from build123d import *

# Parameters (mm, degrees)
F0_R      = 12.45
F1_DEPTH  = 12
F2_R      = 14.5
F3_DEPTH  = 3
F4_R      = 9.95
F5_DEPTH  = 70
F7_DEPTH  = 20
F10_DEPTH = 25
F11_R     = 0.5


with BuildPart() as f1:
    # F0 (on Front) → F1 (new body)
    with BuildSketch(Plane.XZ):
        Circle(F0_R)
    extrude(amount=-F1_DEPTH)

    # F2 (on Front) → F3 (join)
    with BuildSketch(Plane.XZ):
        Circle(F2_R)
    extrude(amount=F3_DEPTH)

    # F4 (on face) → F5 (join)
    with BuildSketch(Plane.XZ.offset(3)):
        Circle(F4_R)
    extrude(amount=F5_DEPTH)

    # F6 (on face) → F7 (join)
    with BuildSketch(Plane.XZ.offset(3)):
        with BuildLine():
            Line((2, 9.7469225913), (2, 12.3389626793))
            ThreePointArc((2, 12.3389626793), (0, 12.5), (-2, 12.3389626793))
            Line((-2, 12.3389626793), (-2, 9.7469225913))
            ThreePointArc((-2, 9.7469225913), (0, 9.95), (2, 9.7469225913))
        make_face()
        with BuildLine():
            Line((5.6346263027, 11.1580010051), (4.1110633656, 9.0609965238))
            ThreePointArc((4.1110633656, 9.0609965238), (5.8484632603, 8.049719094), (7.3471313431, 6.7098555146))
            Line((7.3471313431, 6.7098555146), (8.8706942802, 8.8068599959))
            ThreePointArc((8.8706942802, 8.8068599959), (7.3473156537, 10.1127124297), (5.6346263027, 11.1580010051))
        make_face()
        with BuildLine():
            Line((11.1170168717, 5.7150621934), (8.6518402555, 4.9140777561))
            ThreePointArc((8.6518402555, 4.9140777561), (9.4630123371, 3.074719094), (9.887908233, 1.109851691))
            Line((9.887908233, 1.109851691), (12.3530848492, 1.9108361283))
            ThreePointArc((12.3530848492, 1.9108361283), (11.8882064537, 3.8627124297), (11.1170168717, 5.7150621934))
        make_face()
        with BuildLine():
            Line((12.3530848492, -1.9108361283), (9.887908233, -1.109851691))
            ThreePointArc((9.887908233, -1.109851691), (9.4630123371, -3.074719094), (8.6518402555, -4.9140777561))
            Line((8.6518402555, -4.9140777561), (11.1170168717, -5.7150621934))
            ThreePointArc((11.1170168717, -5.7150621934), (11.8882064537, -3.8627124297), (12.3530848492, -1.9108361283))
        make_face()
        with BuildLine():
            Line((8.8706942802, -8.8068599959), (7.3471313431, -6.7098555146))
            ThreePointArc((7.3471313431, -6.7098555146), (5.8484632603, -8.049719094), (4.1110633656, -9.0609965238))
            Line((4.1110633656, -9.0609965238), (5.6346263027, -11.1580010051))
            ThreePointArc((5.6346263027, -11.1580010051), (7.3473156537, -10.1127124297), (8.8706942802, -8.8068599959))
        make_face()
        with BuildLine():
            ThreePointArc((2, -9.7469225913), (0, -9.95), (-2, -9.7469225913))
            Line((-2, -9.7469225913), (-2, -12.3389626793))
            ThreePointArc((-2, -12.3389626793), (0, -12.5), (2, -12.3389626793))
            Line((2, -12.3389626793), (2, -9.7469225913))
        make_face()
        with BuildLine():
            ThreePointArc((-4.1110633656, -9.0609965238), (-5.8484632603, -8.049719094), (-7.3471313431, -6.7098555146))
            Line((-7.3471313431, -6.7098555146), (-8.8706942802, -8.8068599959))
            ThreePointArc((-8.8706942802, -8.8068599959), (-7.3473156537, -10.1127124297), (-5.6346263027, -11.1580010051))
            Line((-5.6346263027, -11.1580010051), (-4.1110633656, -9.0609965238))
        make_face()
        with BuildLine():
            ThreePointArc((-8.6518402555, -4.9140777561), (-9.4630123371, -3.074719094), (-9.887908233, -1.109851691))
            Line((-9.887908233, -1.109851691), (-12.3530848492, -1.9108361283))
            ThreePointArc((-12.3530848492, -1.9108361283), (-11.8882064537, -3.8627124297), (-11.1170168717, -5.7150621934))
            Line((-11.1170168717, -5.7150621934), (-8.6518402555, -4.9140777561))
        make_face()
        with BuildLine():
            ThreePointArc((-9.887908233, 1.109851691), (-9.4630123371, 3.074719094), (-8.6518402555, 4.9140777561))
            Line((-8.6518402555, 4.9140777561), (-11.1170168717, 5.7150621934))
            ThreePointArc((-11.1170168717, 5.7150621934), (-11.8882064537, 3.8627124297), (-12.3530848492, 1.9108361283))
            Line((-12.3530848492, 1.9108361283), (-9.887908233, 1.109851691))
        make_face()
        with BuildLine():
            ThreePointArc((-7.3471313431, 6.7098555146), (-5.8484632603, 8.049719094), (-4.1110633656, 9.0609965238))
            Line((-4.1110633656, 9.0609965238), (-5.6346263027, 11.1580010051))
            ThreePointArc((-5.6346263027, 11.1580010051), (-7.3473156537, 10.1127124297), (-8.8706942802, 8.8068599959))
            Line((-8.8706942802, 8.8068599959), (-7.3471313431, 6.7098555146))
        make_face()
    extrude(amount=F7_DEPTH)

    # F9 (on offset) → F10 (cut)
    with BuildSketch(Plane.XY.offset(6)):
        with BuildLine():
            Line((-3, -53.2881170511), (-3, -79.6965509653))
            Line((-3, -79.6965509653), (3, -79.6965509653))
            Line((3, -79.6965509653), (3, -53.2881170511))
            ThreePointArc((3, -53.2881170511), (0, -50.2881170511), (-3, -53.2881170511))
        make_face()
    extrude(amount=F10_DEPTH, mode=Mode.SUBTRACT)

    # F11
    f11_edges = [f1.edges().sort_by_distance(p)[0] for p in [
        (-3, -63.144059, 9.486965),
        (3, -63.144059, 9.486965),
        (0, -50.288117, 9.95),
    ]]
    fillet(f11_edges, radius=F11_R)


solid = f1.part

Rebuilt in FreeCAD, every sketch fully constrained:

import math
import FreeCAD as App
import Part
import Sketcher

V = App.Vector
Q = App.Units.Quantity


def edges_at(feature, points):
    """Names of the edges that pass closest to the given points."""
    edges = feature.Shape.Edges
    near = lambda p: min(range(len(edges)), key=lambda i: edges[i].distToShape(Part.Vertex(*p))[0])
    return sorted({f"Edge{near(p) + 1}" for p in points})

doc = App.newDocument("Part")
body = doc.addObject("PartDesign::Body", "Body")

# Sketch on XZ plane
sketch1 = body.newObject("Sketcher::SketchObject", "Sketch")
sketch1.AttachmentSupport = (doc.getObject("XZ_Plane"), [""])
sketch1.MapMode = "FlatFace"
sketch1.addGeometry(Part.Circle(V(0, 0, 0), V(0, 0, 1), 12), False)
sketch1.addConstraint([
    Sketcher.Constraint("Coincident", 0, 3, -1, 1),
    Sketcher.Constraint("Diameter", 0, 24.9),
])
pad1 = body.newObject("PartDesign::Pad", "Pad")
pad1.Profile = sketch1
pad1.Length = 12
pad1.Reversed = True

# Sketch on XZ plane
sketch2 = body.newObject("Sketcher::SketchObject", "Sketch001")
sketch2.AttachmentSupport = (doc.getObject("XZ_Plane"), [""])
sketch2.MapMode = "FlatFace"
sketch2.addGeometry(Part.Circle(V(0, 0, 0), V(0, 0, 1), 14), False)
sketch2.addConstraint([
    Sketcher.Constraint("Coincident", 0, 3, -1, 1),
    Sketcher.Constraint("Diameter", 0, 29.0),
])
pad2 = body.newObject("PartDesign::Pad", "Pad001")
pad2.Profile = sketch2
pad2.Length = 3

# Sketch on XZ plane
sketch3 = body.newObject("Sketcher::SketchObject", "Sketch002")
sketch3.AttachmentSupport = (doc.getObject("XZ_Plane"), [""])
sketch3.MapMode = "FlatFace"
sketch3.AttachmentOffset = App.Placement(V(0, 0, 3), App.Rotation())
sketch3.addGeometry(Part.Circle(V(0, 0, 0), V(0, 0, 1), 10), False)
sketch3.addConstraint([
    Sketcher.Constraint("Coincident", 0, 3, -1, 1),
    Sketcher.Constraint("Diameter", 0, 19.9),
])
pad3 = body.newObject("PartDesign::Pad", "Pad002")
pad3.Profile = sketch3
pad3.Length = 70

# Sketch on XZ plane
sketch4 = body.newObject("Sketcher::SketchObject", "Sketch003")
sketch4.AttachmentSupport = (doc.getObject("XZ_Plane"), [""])
sketch4.MapMode = "FlatFace"
sketch4.AttachmentOffset = App.Placement(V(0, 0, 3), App.Rotation())
sketch4.addGeometry([
    Part.LineSegment(V(2, 9.7, 0), V(2, 12.3, 0)),  # 0
    Part.ArcOfCircle(Part.Circle(V(0, 0, 0), V(0, 0, 1), 12.5), math.radians(80.79), math.radians(99.21)),  # 1
    Part.LineSegment(V(-2, 12.3, 0), V(-2, 9.7, 0)),  # 2
    Part.ArcOfCircle(Part.Circle(V(0, 0, 0), V(0, 0, 1), 10), math.radians(78), math.radians(102)),  # 3
    Part.LineSegment(V(5.6, 11.2, 0), V(4.1, 9.1, 0)),  # 4
    Part.ArcOfCircle(Part.Circle(V(0, 0, 0), V(0, 0, 1), 10), math.radians(42), math.radians(66)),  # 5
    Part.LineSegment(V(7.3, 6.7, 0), V(8.9, 8.8, 0)),  # 6
    Part.ArcOfCircle(Part.Circle(V(0, 0, 0), V(0, 0, 1), 12.5), math.radians(44.79), math.radians(63.21)),  # 7
    Part.LineSegment(V(11.1, 5.7, 0), V(8.7, 4.9, 0)),  # 8
    Part.ArcOfCircle(Part.Circle(V(0, 0, 0), V(0, 0, 1), 10), math.radians(6), math.radians(30)),  # 9
    Part.LineSegment(V(9.9, 1.1, 0), V(12.4, 1.9, 0)),  # 10
    Part.ArcOfCircle(Part.Circle(V(0, 0, 0), V(0, 0, 1), 12.5), math.radians(8.79), math.radians(27.21)),  # 11
    Part.LineSegment(V(12.4, -1.9, 0), V(9.9, -1.1, 0)),  # 12
    Part.ArcOfCircle(Part.Circle(V(0, 0, 0), V(0, 0, 1), 10), math.radians(-30), math.radians(-6)),  # 13
    Part.LineSegment(V(8.7, -4.9, 0), V(11.1, -5.7, 0)),  # 14
    Part.ArcOfCircle(Part.Circle(V(0, 0, 0), V(0, 0, 1), 12.5), math.radians(-27.21), math.radians(-8.79)),  # 15
    Part.LineSegment(V(8.9, -8.8, 0), V(7.3, -6.7, 0)),  # 16
    Part.ArcOfCircle(Part.Circle(V(0, 0, 0), V(0, 0, 1), 10), math.radians(-66), math.radians(-42)),  # 17
    Part.LineSegment(V(4.1, -9.1, 0), V(5.6, -11.2, 0)),  # 18
    Part.ArcOfCircle(Part.Circle(V(0, 0, 0), V(0, 0, 1), 12.5), math.radians(-63.21), math.radians(-44.79)),  # 19
    Part.ArcOfCircle(Part.Circle(V(0, 0, 0), V(0, 0, 1), 10), math.radians(-102), math.radians(-78)),  # 20
    Part.LineSegment(V(-2, -9.7, 0), V(-2, -12.3, 0)),  # 21
    Part.ArcOfCircle(Part.Circle(V(0, 0, 0), V(0, 0, 1), 12.5), math.radians(-99.21), math.radians(-80.79)),  # 22
    Part.LineSegment(V(2, -12.3, 0), V(2, -9.7, 0)),  # 23
    Part.ArcOfCircle(Part.Circle(V(0, 0, 0), V(0, 0, 1), 10), math.radians(-138), math.radians(-114)),  # 24
    Part.LineSegment(V(-7.3, -6.7, 0), V(-8.9, -8.8, 0)),  # 25
    Part.ArcOfCircle(Part.Circle(V(0, 0, 0), V(0, 0, 1), 12.5), math.radians(-135.21), math.radians(-116.79)),  # 26
    Part.LineSegment(V(-5.6, -11.2, 0), V(-4.1, -9.1, 0)),  # 27
    Part.ArcOfCircle(Part.Circle(V(0, 0, 0), V(0, 0, 1), 10), math.radians(-174), math.radians(-150)),  # 28
    Part.LineSegment(V(-9.9, -1.1, 0), V(-12.4, -1.9, 0)),  # 29
    Part.ArcOfCircle(Part.Circle(V(0, 0, 0), V(0, 0, 1), 12.5), math.radians(-171.21), math.radians(-152.79)),  # 30
    Part.LineSegment(V(-11.1, -5.7, 0), V(-8.7, -4.9, 0)),  # 31
    Part.ArcOfCircle(Part.Circle(V(0, 0, 0), V(0, 0, 1), 10), math.radians(150), math.radians(174)),  # 32
    Part.LineSegment(V(-8.7, 4.9, 0), V(-11.1, 5.7, 0)),  # 33
    Part.ArcOfCircle(Part.Circle(V(0, 0, 0), V(0, 0, 1), 12.5), math.radians(152.79), math.radians(171.21)),  # 34
    Part.LineSegment(V(-12.4, 1.9, 0), V(-9.9, 1.1, 0)),  # 35
    Part.ArcOfCircle(Part.Circle(V(0, 0, 0), V(0, 0, 1), 10), math.radians(114), math.radians(138)),  # 36
    Part.LineSegment(V(-4.1, 9.1, 0), V(-5.6, 11.2, 0)),  # 37
    Part.ArcOfCircle(Part.Circle(V(0, 0, 0), V(0, 0, 1), 12.5), math.radians(116.79), math.radians(135.21)),  # 38
    Part.LineSegment(V(-8.9, 8.8, 0), V(-7.3, 6.7, 0)),  # 39
], False)
sketch4.addConstraint([
    Sketcher.Constraint("Coincident", 0, 2, 1, 1),
    Sketcher.Constraint("Coincident", 1, 2, 2, 1),
    Sketcher.Constraint("Coincident", 2, 2, 3, 2),
    Sketcher.Constraint("Coincident", 3, 1, 0, 1),
    Sketcher.Constraint("Coincident", 4, 2, 5, 2),
    Sketcher.Constraint("Coincident", 5, 1, 6, 1),
    Sketcher.Constraint("Coincident", 6, 2, 7, 1),
    Sketcher.Constraint("Coincident", 7, 2, 4, 1),
    Sketcher.Constraint("Coincident", 8, 2, 9, 2),
    Sketcher.Constraint("Coincident", 9, 1, 10, 1),
    Sketcher.Constraint("Coincident", 10, 2, 11, 1),
    Sketcher.Constraint("Coincident", 11, 2, 8, 1),
    Sketcher.Constraint("Coincident", 12, 2, 13, 2),
    Sketcher.Constraint("Coincident", 13, 1, 14, 1),
    Sketcher.Constraint("Coincident", 14, 2, 15, 1),
    Sketcher.Constraint("Coincident", 15, 2, 12, 1),
    Sketcher.Constraint("Coincident", 16, 2, 17, 2),
    Sketcher.Constraint("Coincident", 17, 1, 18, 1),
    Sketcher.Constraint("Coincident", 18, 2, 19, 1),
    Sketcher.Constraint("Coincident", 19, 2, 16, 1),
    Sketcher.Constraint("Coincident", 20, 1, 21, 1),
    Sketcher.Constraint("Coincident", 21, 2, 22, 1),
    Sketcher.Constraint("Coincident", 22, 2, 23, 1),
    Sketcher.Constraint("Coincident", 23, 2, 20, 2),
    Sketcher.Constraint("Coincident", 24, 1, 25, 1),
    Sketcher.Constraint("Coincident", 25, 2, 26, 1),
    Sketcher.Constraint("Coincident", 26, 2, 27, 1),
    Sketcher.Constraint("Coincident", 27, 2, 24, 2),
    Sketcher.Constraint("Coincident", 28, 1, 29, 1),
    Sketcher.Constraint("Coincident", 29, 2, 30, 1),
    Sketcher.Constraint("Coincident", 30, 2, 31, 1),
    Sketcher.Constraint("Coincident", 31, 2, 28, 2),
    Sketcher.Constraint("Coincident", 32, 1, 33, 1),
    Sketcher.Constraint("Coincident", 33, 2, 34, 1),
    Sketcher.Constraint("Coincident", 34, 2, 35, 1),
    Sketcher.Constraint("Coincident", 35, 2, 32, 2),
    Sketcher.Constraint("Coincident", 36, 1, 37, 1),
    Sketcher.Constraint("Coincident", 37, 2, 38, 1),
    Sketcher.Constraint("Coincident", 38, 2, 39, 1),
    Sketcher.Constraint("Coincident", 39, 2, 36, 2),
    Sketcher.Constraint("Vertical", 0),
    Sketcher.Constraint("Vertical", 2),
    Sketcher.Constraint("Vertical", 21),
    Sketcher.Constraint("Vertical", 23),
    Sketcher.Constraint("Coincident", 1, 3, -1, 1),
    Sketcher.Constraint("Coincident", 3, 3, -1, 1),
    Sketcher.Constraint("Coincident", 5, 3, -1, 1),
    Sketcher.Constraint("Coincident", 7, 3, -1, 1),
    Sketcher.Constraint("Coincident", 9, 3, -1, 1),
    Sketcher.Constraint("Coincident", 11, 3, -1, 1),
    Sketcher.Constraint("Coincident", 13, 3, -1, 1),
    Sketcher.Constraint("Coincident", 15, 3, -1, 1),
    Sketcher.Constraint("Coincident", 17, 3, -1, 1),
    Sketcher.Constraint("Coincident", 19, 3, -1, 1),
    Sketcher.Constraint("Coincident", 20, 3, -1, 1),
    Sketcher.Constraint("Coincident", 22, 3, -1, 1),
    Sketcher.Constraint("Coincident", 24, 3, -1, 1),
    Sketcher.Constraint("Coincident", 26, 3, -1, 1),
    Sketcher.Constraint("Coincident", 28, 3, -1, 1),
    Sketcher.Constraint("Coincident", 30, 3, -1, 1),
    Sketcher.Constraint("Coincident", 32, 3, -1, 1),
    Sketcher.Constraint("Coincident", 34, 3, -1, 1),
    Sketcher.Constraint("Coincident", 36, 3, -1, 1),
    Sketcher.Constraint("Coincident", 38, 3, -1, 1),
    Sketcher.Constraint("Equal", 3, 5),
    Sketcher.Constraint("Equal", 1, 7),
    Sketcher.Constraint("Equal", 5, 9),
    Sketcher.Constraint("Equal", 7, 11),
    Sketcher.Constraint("Equal", 9, 13),
    Sketcher.Constraint("Equal", 11, 15),
    Sketcher.Constraint("Equal", 13, 17),
    Sketcher.Constraint("Equal", 15, 19),
    Sketcher.Constraint("Equal", 17, 20),
    Sketcher.Constraint("Equal", 19, 22),
    Sketcher.Constraint("Equal", 20, 24),
    Sketcher.Constraint("Equal", 22, 26),
    Sketcher.Constraint("Equal", 24, 28),
    Sketcher.Constraint("Equal", 26, 30),
    Sketcher.Constraint("Equal", 28, 32),
    Sketcher.Constraint("Equal", 30, 34),
    Sketcher.Constraint("Equal", 32, 36),
    Sketcher.Constraint("Equal", 34, 38),
    Sketcher.Constraint("Parallel", 4, 6),
    Sketcher.Constraint("Parallel", 8, 10),
    Sketcher.Constraint("Parallel", 12, 14),
    Sketcher.Constraint("Parallel", 16, 18),
    Sketcher.Constraint("Parallel", 6, 25),
    Sketcher.Constraint("Parallel", 25, 27),
    Sketcher.Constraint("Parallel", 10, 29),
    Sketcher.Constraint("Parallel", 29, 31),
    Sketcher.Constraint("Parallel", 14, 33),
    Sketcher.Constraint("Parallel", 33, 35),
    Sketcher.Constraint("Parallel", 18, 37),
    Sketcher.Constraint("Parallel", 37, 39),
    Sketcher.Constraint("Horizontal", 0, 2, 1, 2),
    Sketcher.Constraint("Horizontal", 21, 2, 22, 2),
    Sketcher.Constraint("Horizontal", 16, 2, 24, 1),
    Sketcher.Constraint("Horizontal", 19, 2, 25, 2),
    Sketcher.Constraint("Horizontal", 18, 2, 26, 2),
    Sketcher.Constraint("Horizontal", 12, 2, 28, 1),
    Sketcher.Constraint("Horizontal", 15, 2, 29, 2),
    Sketcher.Constraint("Horizontal", 14, 2, 30, 2),
    Sketcher.Constraint("Horizontal", 8, 2, 32, 1),
    Sketcher.Constraint("Horizontal", 10, 2, 34, 2),
    Sketcher.Constraint("Horizontal", 4, 2, 36, 1),
    Sketcher.Constraint("Horizontal", 6, 2, 38, 2),
    Sketcher.Constraint("Vertical", 9, 1, 12, 2),
    Sketcher.Constraint("Vertical", 8, 2, 13, 1),
    Sketcher.Constraint("Vertical", 5, 1, 16, 2),
    Sketcher.Constraint("Vertical", 4, 2, 17, 1),
    Sketcher.Constraint("Vertical", 2, 2, 20, 1),
    Sketcher.Constraint("Equal", 4, 6),
    Sketcher.Constraint("Equal", 6, 8),
    Sketcher.Constraint("Equal", 8, 10),
    Sketcher.Constraint("Radius", 1, 12.5),
    Sketcher.Constraint("Angle", 4, Q("-126 deg")),
    Sketcher.Constraint("Angle", 8, Q("-162 deg")),
    Sketcher.Constraint("Radius", 3, 9.95),
    Sketcher.Constraint("DistanceX", -1, 1, 0, 2, 2.0),
    Sketcher.Constraint("DistanceY", -1, 1, 7, 2, 11.158001),
])
pad4 = body.newObject("PartDesign::Pad", "Pad003")
pad4.Profile = sketch4
pad4.Length = 20

# Sketch on XY plane
sketch5 = body.newObject("Sketcher::SketchObject", "Sketch004")
sketch5.AttachmentSupport = (doc.getObject("XY_Plane"), [""])
sketch5.MapMode = "FlatFace"
sketch5.AttachmentOffset = App.Placement(V(0, 0, 6), App.Rotation())
sketch5.addGeometry([
    Part.LineSegment(V(-3, -53.3, 0), V(-3, -79.7, 0)),
    Part.LineSegment(V(-3, -79.7, 0), V(3, -79.7, 0)),
    Part.LineSegment(V(3, -79.7, 0), V(3, -53.3, 0)),
    Part.ArcOfCircle(Part.Circle(V(0, -53.3, 0), V(0, 0, 1), 3), math.radians(0), math.radians(180)),
], False)
sketch5.addConstraint([
    Sketcher.Constraint("Coincident", 0, 2, 1, 1),
    Sketcher.Constraint("Coincident", 1, 2, 2, 1),
    Sketcher.Constraint("Tangent", 2, 2, 3, 1),
    Sketcher.Constraint("Tangent", 3, 2, 0, 1),
    Sketcher.Constraint("Vertical", 0),
    Sketcher.Constraint("Horizontal", 1),
    Sketcher.Constraint("Vertical", 2),
    Sketcher.Constraint("PointOnObject", 3, 3, -2),
    Sketcher.Constraint("Radius", 3, 3.0),
    Sketcher.Constraint("DistanceY", 0, 2, 0, 1, 26.408434),
    Sketcher.Constraint("DistanceY", 0, 2, -1, 1, 79.696551),
])
pocket1 = body.newObject("PartDesign::Pocket", "Pocket")
pocket1.Profile = sketch5
pocket1.Length = 25
pocket1.Reversed = True
doc.recompute()

fillet = body.newObject("PartDesign::Fillet", "Fillet")
fillet.Base = (pocket1, edges_at(pocket1, [(-3, -63.144, 9.487), (3, -63.144, 9.487), (0, -50.288, 9.95)]))
fillet.Radius = 0.5

doc.recompute()
